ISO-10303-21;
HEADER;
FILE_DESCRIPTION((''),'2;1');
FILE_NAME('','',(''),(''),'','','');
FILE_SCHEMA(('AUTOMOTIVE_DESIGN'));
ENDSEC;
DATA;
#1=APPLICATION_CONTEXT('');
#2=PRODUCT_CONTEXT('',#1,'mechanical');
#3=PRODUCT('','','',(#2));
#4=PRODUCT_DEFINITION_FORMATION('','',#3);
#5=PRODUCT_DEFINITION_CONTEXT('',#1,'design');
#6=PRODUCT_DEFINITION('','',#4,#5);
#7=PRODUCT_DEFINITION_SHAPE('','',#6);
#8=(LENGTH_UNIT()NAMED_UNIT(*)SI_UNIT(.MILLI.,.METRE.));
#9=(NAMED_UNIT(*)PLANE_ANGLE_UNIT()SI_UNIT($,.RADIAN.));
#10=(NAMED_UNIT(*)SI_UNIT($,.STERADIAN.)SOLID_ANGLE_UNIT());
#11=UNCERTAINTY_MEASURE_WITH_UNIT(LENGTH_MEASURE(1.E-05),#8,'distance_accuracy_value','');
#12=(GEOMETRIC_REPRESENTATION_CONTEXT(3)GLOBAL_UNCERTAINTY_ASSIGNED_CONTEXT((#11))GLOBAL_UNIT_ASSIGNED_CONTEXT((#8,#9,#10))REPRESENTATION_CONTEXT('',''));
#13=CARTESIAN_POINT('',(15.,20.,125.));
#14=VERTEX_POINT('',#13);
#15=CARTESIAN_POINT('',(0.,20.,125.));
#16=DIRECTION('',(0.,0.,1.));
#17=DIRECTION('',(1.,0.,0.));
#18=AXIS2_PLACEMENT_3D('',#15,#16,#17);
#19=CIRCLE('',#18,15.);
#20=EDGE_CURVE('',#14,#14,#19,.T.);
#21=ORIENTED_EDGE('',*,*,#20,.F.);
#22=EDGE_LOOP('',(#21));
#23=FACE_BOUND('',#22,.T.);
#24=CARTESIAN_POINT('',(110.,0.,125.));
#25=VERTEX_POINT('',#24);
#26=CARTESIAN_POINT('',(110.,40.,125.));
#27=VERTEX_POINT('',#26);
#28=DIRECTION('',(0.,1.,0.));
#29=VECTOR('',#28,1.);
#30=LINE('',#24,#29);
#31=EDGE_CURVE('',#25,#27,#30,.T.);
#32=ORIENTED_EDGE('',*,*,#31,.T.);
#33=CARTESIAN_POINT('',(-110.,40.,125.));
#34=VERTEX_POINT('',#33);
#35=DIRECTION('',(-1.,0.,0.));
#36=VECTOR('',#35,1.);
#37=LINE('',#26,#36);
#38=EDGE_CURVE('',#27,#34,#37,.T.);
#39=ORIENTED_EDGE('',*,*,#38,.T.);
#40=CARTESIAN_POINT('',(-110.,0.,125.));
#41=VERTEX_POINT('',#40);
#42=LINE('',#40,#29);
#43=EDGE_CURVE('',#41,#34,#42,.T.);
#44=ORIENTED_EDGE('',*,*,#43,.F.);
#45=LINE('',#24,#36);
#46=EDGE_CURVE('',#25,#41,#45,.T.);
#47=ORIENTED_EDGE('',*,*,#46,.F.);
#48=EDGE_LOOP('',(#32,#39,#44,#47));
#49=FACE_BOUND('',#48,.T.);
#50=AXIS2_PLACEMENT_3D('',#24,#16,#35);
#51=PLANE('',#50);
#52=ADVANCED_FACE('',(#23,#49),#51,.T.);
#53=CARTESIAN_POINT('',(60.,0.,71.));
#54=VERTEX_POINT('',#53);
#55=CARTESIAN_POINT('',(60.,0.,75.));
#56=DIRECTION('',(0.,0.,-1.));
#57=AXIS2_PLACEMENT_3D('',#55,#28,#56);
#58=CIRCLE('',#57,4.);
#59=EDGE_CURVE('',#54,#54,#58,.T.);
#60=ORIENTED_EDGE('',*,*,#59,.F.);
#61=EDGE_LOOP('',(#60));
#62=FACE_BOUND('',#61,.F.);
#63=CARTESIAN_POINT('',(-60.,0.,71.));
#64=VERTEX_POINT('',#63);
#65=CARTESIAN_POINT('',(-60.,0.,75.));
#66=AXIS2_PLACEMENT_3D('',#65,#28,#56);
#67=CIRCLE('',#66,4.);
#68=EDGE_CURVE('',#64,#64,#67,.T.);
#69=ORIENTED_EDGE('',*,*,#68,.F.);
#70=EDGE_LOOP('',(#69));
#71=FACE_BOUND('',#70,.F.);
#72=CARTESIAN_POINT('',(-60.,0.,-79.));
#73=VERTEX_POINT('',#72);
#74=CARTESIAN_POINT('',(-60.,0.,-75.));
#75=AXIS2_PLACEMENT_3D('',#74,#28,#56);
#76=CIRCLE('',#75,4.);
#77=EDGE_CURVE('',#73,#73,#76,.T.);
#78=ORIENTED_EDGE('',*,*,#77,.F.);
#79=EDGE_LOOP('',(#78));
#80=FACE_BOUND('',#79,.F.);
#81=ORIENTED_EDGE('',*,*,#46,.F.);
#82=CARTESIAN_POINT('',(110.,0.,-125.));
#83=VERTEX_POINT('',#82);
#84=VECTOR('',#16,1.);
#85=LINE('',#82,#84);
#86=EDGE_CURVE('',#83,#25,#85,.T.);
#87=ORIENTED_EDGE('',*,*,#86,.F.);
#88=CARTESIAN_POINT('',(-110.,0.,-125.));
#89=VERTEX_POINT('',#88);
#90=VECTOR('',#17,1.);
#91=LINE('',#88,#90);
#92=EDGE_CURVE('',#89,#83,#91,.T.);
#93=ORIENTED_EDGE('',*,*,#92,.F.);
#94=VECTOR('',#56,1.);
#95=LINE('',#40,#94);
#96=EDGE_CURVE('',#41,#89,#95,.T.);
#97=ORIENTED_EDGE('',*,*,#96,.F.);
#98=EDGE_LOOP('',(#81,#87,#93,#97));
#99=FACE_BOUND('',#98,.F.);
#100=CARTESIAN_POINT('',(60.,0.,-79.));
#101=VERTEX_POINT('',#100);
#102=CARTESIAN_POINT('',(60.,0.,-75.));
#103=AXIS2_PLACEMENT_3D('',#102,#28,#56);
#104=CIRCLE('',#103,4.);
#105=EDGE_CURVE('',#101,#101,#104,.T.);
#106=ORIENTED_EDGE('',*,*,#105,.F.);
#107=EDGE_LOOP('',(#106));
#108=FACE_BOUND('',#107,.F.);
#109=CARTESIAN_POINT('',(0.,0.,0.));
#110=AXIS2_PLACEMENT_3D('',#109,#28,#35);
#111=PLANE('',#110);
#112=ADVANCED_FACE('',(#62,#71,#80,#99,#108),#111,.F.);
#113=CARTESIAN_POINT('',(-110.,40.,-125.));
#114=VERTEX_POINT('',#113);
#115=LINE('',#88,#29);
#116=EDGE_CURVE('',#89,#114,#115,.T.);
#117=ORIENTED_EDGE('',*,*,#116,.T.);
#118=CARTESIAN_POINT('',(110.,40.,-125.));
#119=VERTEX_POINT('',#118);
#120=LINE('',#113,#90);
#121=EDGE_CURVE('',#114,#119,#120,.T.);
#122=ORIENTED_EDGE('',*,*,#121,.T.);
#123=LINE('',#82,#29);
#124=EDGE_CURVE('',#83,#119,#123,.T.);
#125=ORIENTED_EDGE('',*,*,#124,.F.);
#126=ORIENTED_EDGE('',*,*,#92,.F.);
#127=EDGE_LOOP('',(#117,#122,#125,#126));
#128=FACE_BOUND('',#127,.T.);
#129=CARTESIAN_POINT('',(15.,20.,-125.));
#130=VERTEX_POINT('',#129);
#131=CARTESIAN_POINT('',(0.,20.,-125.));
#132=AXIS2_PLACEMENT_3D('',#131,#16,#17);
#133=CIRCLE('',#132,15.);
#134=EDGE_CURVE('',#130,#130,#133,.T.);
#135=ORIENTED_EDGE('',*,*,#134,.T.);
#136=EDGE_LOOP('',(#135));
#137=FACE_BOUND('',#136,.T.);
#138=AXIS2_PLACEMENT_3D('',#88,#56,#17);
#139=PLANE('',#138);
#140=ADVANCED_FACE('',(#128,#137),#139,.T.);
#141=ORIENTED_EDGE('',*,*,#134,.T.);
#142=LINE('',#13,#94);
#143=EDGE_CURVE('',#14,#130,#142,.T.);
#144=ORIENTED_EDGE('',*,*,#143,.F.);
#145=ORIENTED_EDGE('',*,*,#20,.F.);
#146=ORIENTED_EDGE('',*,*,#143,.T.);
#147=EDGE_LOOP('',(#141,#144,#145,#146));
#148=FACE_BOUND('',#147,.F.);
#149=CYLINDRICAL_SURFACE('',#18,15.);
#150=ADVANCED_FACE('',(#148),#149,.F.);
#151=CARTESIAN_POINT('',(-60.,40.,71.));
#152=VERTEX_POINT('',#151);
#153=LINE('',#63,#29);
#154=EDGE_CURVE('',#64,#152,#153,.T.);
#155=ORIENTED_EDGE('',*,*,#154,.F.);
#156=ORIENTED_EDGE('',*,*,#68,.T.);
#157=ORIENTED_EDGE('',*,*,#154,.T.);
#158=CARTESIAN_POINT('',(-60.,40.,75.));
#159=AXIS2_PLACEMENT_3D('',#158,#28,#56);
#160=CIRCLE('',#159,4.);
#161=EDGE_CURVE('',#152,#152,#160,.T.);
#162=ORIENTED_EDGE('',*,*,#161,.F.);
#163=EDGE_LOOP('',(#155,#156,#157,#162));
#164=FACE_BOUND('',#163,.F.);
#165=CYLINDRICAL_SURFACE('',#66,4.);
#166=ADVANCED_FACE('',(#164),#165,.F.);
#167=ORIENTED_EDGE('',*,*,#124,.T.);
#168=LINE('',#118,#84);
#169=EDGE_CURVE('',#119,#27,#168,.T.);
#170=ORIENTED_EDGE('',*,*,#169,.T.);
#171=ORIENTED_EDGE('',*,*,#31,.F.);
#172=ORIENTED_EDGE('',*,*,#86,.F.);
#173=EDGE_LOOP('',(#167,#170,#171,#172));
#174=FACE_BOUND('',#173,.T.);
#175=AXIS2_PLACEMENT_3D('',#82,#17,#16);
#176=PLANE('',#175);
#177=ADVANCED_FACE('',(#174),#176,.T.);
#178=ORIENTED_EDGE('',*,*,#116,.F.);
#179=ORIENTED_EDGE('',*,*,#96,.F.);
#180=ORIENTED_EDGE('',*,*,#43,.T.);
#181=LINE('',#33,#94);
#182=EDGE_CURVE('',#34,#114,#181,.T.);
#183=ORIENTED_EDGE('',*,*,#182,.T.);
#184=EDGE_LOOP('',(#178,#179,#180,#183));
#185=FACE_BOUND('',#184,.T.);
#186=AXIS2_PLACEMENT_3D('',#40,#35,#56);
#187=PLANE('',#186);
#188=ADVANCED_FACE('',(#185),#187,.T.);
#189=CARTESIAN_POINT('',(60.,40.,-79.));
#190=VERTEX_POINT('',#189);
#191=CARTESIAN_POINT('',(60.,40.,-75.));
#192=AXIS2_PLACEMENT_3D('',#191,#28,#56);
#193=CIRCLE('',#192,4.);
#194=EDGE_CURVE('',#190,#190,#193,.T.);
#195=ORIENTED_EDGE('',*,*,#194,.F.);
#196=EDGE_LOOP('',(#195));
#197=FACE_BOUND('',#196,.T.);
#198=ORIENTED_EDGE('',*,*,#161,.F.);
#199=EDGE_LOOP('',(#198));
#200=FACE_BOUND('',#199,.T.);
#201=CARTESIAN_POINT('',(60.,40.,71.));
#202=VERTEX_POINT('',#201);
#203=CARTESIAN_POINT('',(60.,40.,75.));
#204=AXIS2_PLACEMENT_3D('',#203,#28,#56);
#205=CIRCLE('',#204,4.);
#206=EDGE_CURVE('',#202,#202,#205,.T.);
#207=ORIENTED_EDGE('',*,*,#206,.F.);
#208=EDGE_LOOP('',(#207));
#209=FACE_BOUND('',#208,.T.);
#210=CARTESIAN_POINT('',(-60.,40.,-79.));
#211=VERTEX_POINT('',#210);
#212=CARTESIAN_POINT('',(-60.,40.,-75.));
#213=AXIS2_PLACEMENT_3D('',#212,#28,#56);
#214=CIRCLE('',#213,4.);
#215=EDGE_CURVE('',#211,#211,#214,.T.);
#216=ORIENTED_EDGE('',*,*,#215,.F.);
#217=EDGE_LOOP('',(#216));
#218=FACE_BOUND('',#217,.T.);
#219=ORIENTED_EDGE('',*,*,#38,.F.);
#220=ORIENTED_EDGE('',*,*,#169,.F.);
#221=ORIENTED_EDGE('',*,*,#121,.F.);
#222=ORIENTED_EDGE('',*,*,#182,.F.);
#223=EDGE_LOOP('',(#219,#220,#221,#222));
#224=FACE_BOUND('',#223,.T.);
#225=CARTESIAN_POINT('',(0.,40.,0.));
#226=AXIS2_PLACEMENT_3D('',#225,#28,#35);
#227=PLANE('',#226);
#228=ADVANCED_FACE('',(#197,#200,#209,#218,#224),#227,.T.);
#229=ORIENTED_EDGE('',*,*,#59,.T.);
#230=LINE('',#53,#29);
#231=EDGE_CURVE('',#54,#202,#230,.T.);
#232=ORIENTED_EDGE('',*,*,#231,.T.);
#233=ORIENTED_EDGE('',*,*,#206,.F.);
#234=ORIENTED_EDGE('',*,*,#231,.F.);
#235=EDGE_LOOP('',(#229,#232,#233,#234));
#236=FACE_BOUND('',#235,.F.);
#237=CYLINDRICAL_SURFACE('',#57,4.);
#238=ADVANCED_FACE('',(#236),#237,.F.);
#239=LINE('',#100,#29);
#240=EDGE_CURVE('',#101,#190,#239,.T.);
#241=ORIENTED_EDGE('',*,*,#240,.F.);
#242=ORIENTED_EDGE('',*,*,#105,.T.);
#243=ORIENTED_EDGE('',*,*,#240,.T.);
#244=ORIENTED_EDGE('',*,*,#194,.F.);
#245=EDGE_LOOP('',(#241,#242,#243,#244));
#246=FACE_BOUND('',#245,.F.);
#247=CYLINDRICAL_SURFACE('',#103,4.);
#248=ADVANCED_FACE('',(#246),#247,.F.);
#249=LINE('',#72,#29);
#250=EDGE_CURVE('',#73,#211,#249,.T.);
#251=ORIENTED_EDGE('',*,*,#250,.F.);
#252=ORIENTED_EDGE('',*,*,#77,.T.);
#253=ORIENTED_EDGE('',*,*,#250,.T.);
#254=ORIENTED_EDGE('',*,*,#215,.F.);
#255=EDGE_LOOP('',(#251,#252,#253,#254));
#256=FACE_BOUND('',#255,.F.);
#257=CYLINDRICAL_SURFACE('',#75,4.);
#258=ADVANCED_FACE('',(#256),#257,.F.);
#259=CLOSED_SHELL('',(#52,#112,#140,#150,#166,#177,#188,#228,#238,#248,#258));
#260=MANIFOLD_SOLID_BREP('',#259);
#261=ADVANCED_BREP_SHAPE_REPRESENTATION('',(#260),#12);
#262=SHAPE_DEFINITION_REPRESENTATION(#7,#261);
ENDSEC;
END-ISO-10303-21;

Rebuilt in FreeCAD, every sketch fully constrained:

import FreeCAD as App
import Part
import Sketcher


def add_polygon(sketch, points):
    """Adds a closed chain of lines whose ends are joined by coincident constraints."""
    first, n = sketch.GeometryCount, len(points)
    for a, b in zip(points, points[1:] + points[:1]):
        sketch.addGeometry(Part.LineSegment(App.Vector(*a, 0), App.Vector(*b, 0)), False)
    for i in range(n):
        sketch.addConstraint(Sketcher.Constraint("Coincident", first + i, 2, first + (i + 1) % n, 1))

doc = App.newDocument("Part")
params = doc.addObject("Spreadsheet::Sheet", "Params")
for row, (alias, value) in enumerate([
    ("sketch1_width", "220 mm"),
    ("sketch1_height", "250 mm"),
    ("pad1_length", "40 mm"),
    ("sketch2_diameter", "8 mm"),
    ("hole_diameter", "8 mm"),
    ("sketch3_diameter", "30 mm"),
], start=1):
    params.set(f"A{row}", alias)
    params.set(f"B{row}", "=" + value)
    params.setAlias(f"B{row}", alias)

body = doc.addObject("PartDesign::Body", "Body")

# Sketch on XZ plane
sketch1 = body.newObject("Sketcher::SketchObject", "Sketch")
sketch1.AttachmentSupport = (doc.getObject("XZ_Plane"), [""])
sketch1.MapMode = "FlatFace"
add_polygon(sketch1, [(110, -125), (-110, -125), (-110, 125), (110, 125)])  # lines 0-3
sketch1.addConstraint([
    Sketcher.Constraint("Horizontal", 0),
    Sketcher.Constraint("Vertical", 1),
    Sketcher.Constraint("Horizontal", 2),
    Sketcher.Constraint("Vertical", 3),
    Sketcher.Constraint("Symmetric", 0, 2, 2, 2, -1, 1),
    Sketcher.Constraint("DistanceX", 0, 2, 0, 1, 220.0),
    Sketcher.Constraint("DistanceY", 1, 1, 1, 2, 250.0),
])
sketch1.setExpression("Constraints[9]", "Params.sketch1_width")
sketch1.setExpression("Constraints[10]", "Params.sketch1_height")
pad1 = body.newObject("PartDesign::Pad", "Pad")
pad1.Profile = sketch1
pad1.setExpression("Length", "Params.pad1_length")
pad1.Reversed = True

# Sketch on XZ plane
sketch2 = body.newObject("Sketcher::SketchObject", "Sketch001")
sketch2.AttachmentSupport = (doc.getObject("XZ_Plane"), [""])
sketch2.MapMode = "FlatFace"
sketch2.addGeometry([
    Part.Circle(App.Vector(-60, -75, 0), App.Vector(0, 0, 1), 4),
    Part.Circle(App.Vector(60, -75, 0), App.Vector(0, 0, 1), 4),
    Part.Circle(App.Vector(60, 75, 0), App.Vector(0, 0, 1), 4),
    Part.Circle(App.Vector(-60, 75, 0), App.Vector(0, 0, 1), 4),
], False)
sketch2.addConstraint([
    Sketcher.Constraint("Equal", 0, 1),
    Sketcher.Constraint("Equal", 1, 2),
    Sketcher.Constraint("Equal", 2, 3),
    Sketcher.Constraint("Symmetric", 0, 3, 2, 3, -1, 1),
    Sketcher.Constraint("Symmetric", 1, 3, 3, 3, -1, 1),
    Sketcher.Constraint("Symmetric", 0, 3, 1, 3, -2),
    Sketcher.Constraint("Diameter", 0, 8.0),
    Sketcher.Constraint("DistanceX", 0, 3, -1, 1, 60.0),
    Sketcher.Constraint("DistanceY", 0, 3, -1, 1, 75.0),
])
sketch2.setExpression("Constraints[6]", "Params.sketch2_diameter")
doc.recompute()
hole = body.newObject("PartDesign::Hole", "Hole")
hole.Profile = sketch2
hole.ThreadType = "None"
hole.setExpression("Diameter", "Params.hole_diameter")
hole.DepthType = "ThroughAll"

# Sketch on XY plane
sketch3 = body.newObject("Sketcher::SketchObject", "Sketch002")
sketch3.AttachmentSupport = (doc.getObject("XY_Plane"), [""])
sketch3.MapMode = "FlatFace"
sketch3.AttachmentOffset = App.Placement(App.Vector(0, 0, 125), App.Rotation())
sketch3.addGeometry(Part.Circle(App.Vector(0, 20, 0), App.Vector(0, 0, 1), 15), False)
sketch3.addConstraint([
    Sketcher.Constraint("PointOnObject", 0, 3, -2),
    Sketcher.Constraint("Diameter", 0, 30.0),
    Sketcher.Constraint("DistanceY", -1, 1, 0, 3, 20.0),
])
sketch3.setExpression("Constraints[1]", "Params.sketch3_diameter")
pocket1 = body.newObject("PartDesign::Pocket", "Pocket")
pocket1.Profile = sketch3
pocket1.Type = "ThroughAll"

doc.recompute()
